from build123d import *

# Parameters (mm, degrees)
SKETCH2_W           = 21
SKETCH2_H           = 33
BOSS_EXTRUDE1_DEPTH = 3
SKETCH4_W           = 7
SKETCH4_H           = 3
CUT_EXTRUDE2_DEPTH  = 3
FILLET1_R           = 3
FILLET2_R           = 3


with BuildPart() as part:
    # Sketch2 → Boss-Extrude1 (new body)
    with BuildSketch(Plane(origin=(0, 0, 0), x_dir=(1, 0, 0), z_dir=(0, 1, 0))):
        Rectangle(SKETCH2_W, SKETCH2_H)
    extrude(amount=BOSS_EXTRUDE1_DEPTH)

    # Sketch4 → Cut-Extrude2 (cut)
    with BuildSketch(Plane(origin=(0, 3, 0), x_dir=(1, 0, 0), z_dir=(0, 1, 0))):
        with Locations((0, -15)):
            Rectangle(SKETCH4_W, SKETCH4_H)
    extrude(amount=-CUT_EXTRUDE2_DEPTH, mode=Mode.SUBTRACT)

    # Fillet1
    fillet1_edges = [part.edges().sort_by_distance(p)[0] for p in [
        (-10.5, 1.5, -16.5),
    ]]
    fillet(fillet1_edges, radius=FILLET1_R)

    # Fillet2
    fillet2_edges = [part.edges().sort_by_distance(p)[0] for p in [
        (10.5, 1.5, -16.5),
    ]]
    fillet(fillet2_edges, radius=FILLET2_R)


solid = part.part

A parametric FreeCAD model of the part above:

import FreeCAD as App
import Part
import Sketcher

V = App.Vector
Q = App.Units.Quantity


def edges_at(feature, points):
    """Names of the edges that pass closest to the given points."""
    edges = feature.Shape.Edges
    near = lambda p: min(range(len(edges)), key=lambda i: edges[i].distToShape(Part.Vertex(*p))[0])
    return sorted({f"Edge{near(p) + 1}" for p in points})

doc = App.newDocument("Part")
body = doc.addObject("PartDesign::Body", "Body")

sketch1 = doc.addObject("Sketcher::SketchObject", "Sketch")
body.addObject(sketch1)
sketch1.AttachmentSupport = (doc.XZ_Plane, [""])
sketch1.MapMode = "FlatFace"
sketch1.addGeometry([
    Part.LineSegment(V(-10.5, -16.5, 0), V(-10.5, 16.5, 0)),
    Part.LineSegment(V(-10.5, 16.5, 0), V(10.5, 16.5, 0)),
    Part.LineSegment(V(10.5, 16.5, 0), V(10.5, -16.5, 0)),
    Part.LineSegment(V(10.5, -16.5, 0), V(-10.5, -16.5, 0)),
], False)
sketch1.addConstraint([
    Sketcher.Constraint("Coincident", 0, 2, 1, 1),
    Sketcher.Constraint("Coincident", 1, 2, 2, 1),
    Sketcher.Constraint("Coincident", 2, 2, 3, 1),
    Sketcher.Constraint("Coincident", 3, 2, 0, 1),
    Sketcher.Constraint("Vertical", 0),
    Sketcher.Constraint("Horizontal", 1),
    Sketcher.Constraint("Vertical", 2),
    Sketcher.Constraint("Horizontal", 3),
    Sketcher.Constraint("Symmetric", 0, 2, 2, 2, -1, 1),
    Sketcher.Constraint("DistanceX", 1, 1, 1, 2, Q("21 mm")),
    Sketcher.Constraint("DistanceY", 0, 1, 0, 2, Q("33 mm")),
])
pad1 = doc.addObject("PartDesign::Pad", "Pad")
body.addObject(pad1)
pad1.Profile = sketch1
pad1.Length = 3
pad1.Reversed = True

sketch2 = doc.addObject("Sketcher::SketchObject", "Sketch001")
body.addObject(sketch2)
sketch2.AttachmentSupport = (doc.XZ_Plane, [""])
sketch2.MapMode = "FlatFace"
sketch2.AttachmentOffset = App.Placement(V(0, 0, -3), App.Rotation())
sketch2.addGeometry([
    Part.LineSegment(V(-3.5, 13.5, 0), V(-3.5, 16.5, 0)),
    Part.LineSegment(V(-3.5, 16.5, 0), V(3.5, 16.5, 0)),
    Part.LineSegment(V(3.5, 16.5, 0), V(3.5, 13.5, 0)),
    Part.LineSegment(V(3.5, 13.5, 0), V(-3.5, 13.5, 0)),
], False)
sketch2.addConstraint([
    Sketcher.Constraint("Coincident", 0, 2, 1, 1),
    Sketcher.Constraint("Coincident", 1, 2, 2, 1),
    Sketcher.Constraint("Coincident", 2, 2, 3, 1),
    Sketcher.Constraint("Coincident", 3, 2, 0, 1),
    Sketcher.Constraint("Vertical", 0),
    Sketcher.Constraint("Horizontal", 1),
    Sketcher.Constraint("Vertical", 2),
    Sketcher.Constraint("Horizontal", 3),
    Sketcher.Constraint("DistanceX", 1, 1, 1, 2, Q("7 mm")),
    Sketcher.Constraint("DistanceY", 0, 1, 0, 2, Q("3 mm")),
    Sketcher.Constraint("DistanceX", 0, 2, -1, 1, Q("3.5 mm")),
    Sketcher.Constraint("DistanceY", -1, 1, 0, 2, Q("16.5 mm")),
])
pocket1 = doc.addObject("PartDesign::Pocket", "Pocket")
body.addObject(pocket1)
pocket1.Profile = sketch2
pocket1.Length = 3
pocket1.Reversed = True
doc.recompute()

fillet = doc.addObject("PartDesign::Fillet", "Fillet")
body.addObject(fillet)
fillet.Base = (pocket1, edges_at(pocket1, [(-10.5, 1.5, -16.5)]))
fillet.Radius = 3
doc.recompute()

fillet2 = doc.addObject("PartDesign::Fillet", "Fillet001")
body.addObject(fillet2)
fillet2.Base = (fillet, edges_at(fillet, [(10.5, 1.5, -16.5)]))
fillet2.Radius = 3

doc.recompute()
